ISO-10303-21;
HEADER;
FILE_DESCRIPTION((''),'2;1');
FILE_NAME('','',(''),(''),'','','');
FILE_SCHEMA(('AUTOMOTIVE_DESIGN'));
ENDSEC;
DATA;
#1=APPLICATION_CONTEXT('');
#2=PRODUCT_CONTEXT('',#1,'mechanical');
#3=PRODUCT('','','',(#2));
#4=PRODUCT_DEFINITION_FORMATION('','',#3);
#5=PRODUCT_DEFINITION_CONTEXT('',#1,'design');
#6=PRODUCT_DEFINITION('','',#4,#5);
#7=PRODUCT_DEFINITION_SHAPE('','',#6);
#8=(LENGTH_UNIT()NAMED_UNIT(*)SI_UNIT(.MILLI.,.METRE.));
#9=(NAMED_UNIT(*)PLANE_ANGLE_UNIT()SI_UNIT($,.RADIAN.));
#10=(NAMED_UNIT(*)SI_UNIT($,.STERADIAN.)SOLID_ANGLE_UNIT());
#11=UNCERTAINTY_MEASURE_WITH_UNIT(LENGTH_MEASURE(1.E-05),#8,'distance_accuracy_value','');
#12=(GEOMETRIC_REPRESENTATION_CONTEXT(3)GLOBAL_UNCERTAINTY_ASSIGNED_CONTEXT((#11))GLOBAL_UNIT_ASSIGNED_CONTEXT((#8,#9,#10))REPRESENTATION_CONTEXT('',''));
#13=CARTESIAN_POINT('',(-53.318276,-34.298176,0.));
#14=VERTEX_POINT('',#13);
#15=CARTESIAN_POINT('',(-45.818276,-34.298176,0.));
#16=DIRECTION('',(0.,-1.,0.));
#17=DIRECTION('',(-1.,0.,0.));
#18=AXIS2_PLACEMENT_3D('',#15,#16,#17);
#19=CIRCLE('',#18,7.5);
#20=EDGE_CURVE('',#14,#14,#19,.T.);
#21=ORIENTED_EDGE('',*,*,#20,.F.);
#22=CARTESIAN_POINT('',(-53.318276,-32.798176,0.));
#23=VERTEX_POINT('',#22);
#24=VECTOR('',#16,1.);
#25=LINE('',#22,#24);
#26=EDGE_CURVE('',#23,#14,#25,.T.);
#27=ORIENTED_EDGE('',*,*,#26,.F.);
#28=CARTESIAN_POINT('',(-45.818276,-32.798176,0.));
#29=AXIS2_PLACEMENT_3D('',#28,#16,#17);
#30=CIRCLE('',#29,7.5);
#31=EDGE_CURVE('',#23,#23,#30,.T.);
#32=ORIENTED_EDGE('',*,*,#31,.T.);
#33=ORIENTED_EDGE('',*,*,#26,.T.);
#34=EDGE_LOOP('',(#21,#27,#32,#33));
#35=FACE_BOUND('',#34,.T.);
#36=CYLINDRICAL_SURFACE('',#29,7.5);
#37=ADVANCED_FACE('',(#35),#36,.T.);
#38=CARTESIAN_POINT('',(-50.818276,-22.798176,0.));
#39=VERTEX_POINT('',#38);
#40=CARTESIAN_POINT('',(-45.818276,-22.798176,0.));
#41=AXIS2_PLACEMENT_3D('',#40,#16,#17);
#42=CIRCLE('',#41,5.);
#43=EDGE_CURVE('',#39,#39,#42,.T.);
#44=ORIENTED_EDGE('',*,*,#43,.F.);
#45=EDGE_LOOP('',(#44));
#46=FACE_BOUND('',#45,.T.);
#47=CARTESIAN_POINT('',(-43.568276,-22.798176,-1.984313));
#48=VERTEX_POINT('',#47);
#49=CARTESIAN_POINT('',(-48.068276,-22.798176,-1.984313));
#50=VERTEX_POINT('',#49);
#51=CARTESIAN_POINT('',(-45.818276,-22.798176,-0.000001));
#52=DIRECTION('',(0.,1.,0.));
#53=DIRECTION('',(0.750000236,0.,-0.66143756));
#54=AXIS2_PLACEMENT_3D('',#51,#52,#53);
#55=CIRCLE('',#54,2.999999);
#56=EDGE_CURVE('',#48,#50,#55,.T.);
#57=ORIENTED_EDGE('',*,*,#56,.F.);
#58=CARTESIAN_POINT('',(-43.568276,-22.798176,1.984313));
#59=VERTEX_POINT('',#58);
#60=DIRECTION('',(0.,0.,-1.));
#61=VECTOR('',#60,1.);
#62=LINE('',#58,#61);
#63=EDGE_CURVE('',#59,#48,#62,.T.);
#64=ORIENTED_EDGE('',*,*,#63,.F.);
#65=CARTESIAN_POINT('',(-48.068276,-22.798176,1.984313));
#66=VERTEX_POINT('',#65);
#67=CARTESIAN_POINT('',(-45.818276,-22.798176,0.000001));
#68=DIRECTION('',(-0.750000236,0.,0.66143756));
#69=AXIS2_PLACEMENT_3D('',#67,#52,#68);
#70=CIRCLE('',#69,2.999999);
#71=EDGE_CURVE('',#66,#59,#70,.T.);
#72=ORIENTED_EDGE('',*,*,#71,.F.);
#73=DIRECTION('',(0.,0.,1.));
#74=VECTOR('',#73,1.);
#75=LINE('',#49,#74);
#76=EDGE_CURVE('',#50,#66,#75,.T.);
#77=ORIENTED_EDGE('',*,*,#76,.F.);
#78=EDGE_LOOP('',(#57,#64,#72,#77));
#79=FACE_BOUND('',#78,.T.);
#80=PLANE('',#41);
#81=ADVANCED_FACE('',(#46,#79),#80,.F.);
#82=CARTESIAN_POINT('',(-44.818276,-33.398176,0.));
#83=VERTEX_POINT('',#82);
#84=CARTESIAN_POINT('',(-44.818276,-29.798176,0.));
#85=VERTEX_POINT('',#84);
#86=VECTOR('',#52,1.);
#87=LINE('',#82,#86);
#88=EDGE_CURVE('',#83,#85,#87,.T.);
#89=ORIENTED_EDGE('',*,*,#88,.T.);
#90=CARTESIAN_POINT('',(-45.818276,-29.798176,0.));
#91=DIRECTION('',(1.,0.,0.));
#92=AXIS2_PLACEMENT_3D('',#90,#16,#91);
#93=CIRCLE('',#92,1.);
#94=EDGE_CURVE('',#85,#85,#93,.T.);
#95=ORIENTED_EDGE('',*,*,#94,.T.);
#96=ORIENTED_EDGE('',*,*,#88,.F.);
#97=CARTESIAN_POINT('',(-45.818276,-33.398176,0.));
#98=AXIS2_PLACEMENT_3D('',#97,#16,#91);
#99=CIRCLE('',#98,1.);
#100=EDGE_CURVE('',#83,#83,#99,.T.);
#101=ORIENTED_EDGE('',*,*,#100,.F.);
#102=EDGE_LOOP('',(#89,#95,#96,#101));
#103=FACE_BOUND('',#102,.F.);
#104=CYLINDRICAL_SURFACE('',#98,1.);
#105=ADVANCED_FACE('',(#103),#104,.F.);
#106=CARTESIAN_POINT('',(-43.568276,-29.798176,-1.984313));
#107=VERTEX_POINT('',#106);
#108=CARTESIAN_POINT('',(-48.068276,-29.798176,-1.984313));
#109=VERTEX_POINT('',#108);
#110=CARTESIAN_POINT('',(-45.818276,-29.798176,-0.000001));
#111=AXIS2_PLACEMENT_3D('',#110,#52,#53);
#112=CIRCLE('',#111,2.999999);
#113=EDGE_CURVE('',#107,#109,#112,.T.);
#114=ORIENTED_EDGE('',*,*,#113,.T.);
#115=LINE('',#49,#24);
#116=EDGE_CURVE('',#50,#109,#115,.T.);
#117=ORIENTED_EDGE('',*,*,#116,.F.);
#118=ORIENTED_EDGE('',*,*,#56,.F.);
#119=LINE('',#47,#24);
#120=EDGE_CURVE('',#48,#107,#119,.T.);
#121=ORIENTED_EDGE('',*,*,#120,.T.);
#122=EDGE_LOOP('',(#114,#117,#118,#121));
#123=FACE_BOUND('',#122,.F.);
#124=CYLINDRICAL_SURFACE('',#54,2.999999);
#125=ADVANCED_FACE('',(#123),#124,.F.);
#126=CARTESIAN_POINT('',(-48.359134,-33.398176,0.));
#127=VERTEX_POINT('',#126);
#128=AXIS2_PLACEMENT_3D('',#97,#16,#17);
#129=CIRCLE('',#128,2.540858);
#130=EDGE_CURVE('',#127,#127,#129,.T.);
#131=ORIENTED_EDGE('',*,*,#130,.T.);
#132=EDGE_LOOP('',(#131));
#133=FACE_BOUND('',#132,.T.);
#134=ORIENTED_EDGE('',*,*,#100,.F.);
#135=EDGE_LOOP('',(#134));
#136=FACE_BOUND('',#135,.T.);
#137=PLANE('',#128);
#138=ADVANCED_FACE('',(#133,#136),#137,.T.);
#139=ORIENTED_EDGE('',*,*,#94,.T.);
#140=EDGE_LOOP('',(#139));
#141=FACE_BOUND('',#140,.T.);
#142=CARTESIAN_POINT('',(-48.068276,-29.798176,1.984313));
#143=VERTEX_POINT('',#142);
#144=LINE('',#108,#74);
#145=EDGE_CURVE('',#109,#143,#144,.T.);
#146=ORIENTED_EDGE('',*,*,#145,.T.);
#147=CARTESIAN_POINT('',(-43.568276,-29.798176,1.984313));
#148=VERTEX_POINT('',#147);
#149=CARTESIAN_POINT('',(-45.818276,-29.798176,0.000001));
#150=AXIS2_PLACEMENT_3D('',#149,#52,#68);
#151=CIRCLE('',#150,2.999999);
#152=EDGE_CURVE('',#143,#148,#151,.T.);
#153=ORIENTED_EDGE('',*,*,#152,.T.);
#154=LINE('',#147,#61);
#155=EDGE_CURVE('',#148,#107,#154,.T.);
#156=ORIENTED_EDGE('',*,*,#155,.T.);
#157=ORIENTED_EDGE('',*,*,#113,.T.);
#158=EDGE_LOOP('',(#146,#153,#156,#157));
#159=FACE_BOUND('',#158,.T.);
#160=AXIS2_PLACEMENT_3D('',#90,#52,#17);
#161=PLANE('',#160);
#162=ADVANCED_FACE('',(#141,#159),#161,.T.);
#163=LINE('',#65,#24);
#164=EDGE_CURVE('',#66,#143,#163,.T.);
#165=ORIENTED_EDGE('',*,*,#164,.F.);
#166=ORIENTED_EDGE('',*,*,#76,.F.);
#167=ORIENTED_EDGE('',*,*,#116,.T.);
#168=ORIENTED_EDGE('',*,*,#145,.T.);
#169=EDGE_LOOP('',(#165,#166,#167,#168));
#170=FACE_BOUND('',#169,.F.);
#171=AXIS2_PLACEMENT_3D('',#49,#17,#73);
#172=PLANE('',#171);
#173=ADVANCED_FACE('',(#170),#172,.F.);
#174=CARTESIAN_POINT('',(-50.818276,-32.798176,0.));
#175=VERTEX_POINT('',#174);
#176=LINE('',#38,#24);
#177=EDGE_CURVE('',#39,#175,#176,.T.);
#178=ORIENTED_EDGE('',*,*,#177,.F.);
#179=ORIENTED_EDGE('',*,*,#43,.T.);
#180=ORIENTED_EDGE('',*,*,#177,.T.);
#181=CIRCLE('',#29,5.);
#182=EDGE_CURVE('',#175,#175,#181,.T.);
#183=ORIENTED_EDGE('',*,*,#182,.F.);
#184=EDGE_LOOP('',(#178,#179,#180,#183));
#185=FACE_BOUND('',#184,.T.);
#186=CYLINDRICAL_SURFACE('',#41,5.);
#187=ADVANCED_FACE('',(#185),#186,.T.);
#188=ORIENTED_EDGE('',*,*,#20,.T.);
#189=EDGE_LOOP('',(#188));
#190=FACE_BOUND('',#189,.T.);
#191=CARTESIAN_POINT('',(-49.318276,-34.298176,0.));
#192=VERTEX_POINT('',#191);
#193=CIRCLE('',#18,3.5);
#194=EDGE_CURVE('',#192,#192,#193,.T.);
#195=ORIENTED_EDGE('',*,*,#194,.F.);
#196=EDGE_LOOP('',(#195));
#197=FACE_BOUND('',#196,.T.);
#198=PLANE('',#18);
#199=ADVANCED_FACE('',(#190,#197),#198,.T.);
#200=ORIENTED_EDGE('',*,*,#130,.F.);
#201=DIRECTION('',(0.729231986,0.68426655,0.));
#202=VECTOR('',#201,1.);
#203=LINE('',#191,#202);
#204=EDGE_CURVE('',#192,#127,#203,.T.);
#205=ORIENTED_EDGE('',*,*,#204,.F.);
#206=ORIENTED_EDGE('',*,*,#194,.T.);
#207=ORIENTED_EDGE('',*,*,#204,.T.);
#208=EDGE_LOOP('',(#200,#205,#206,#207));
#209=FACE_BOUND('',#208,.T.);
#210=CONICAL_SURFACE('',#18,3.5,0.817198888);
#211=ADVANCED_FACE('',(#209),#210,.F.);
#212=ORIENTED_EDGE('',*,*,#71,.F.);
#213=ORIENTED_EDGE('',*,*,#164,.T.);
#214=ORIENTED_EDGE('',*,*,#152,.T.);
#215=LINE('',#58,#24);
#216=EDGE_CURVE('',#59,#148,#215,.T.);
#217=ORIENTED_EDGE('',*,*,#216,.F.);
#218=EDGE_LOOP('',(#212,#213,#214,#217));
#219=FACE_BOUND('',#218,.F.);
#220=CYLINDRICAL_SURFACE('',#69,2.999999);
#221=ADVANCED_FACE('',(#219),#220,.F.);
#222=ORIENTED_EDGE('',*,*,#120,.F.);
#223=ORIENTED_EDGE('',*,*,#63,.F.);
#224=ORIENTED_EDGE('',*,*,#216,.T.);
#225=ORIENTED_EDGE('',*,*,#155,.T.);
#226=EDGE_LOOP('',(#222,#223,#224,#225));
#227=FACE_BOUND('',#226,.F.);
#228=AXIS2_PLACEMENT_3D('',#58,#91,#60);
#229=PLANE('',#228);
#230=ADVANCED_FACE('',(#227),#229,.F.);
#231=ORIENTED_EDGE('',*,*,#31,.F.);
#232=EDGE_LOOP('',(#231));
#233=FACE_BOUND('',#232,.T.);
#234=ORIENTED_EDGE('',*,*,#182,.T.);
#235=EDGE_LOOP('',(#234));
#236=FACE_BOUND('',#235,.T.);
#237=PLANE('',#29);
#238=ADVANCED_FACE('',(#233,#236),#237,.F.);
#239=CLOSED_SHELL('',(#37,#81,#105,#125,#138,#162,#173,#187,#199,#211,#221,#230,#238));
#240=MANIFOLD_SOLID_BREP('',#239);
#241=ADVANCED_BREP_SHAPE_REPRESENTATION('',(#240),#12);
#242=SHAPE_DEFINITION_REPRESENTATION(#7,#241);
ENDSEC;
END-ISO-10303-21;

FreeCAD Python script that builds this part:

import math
import FreeCAD as App
import Part
import Sketcher

V = App.Vector

doc = App.newDocument("Part")
params = doc.addObject("Spreadsheet::Sheet", "Params")
for row, (alias, value) in enumerate([
    ("sketch1_width", "5 mm"),
    ("sketch1_width2", "4 mm"),
    ("sketch1_height", "10 mm"),
    ("sketch1_width3", "2.5 mm"),
    ("sketch1_height2", "10.6 mm"),
    ("revolution_angle", "360 deg"),
    ("sketch2_radius", "2.999999 mm"),
    ("pocket1_length", "7 mm"),
    ("sketch3_diameter", "2 mm"),
    ("pocket2_length", "25 mm"),
], start=1):
    params.set(f"A{row}", alias)
    params.set(f"B{row}", "=" + value)
    params.setAlias(f"B{row}", alias)

body = doc.addObject("PartDesign::Body", "Body")

sketch1 = body.newObject("Sketcher::SketchObject", "Sketch")
sketch1.AttachmentSupport = (doc.getObject("XY_Plane"), [""])
sketch1.MapMode = "FlatFace"
sketch1.addGeometry([
    Part.LineSegment(V(-45.8, -33.4, 0), V(-45.8, -22.8, 0)),
    Part.LineSegment(V(-45.8, -22.8, 0), V(-50.8, -22.8, 0)),
    Part.LineSegment(V(-50.8, -22.8, 0), V(-50.8, -32.8, 0)),
    Part.LineSegment(V(-50.8, -32.8, 0), V(-53.3, -32.8, 0)),
    Part.LineSegment(V(-53.3, -32.8, 0), V(-53.3, -34.3, 0)),
    Part.LineSegment(V(-53.3, -34.3, 0), V(-49.3, -34.3, 0)),
    Part.LineSegment(V(-49.3, -34.3, 0), V(-48.4, -33.4, 0)),
    Part.LineSegment(V(-48.4, -33.4, 0), V(-45.8, -33.4, 0)),
], False)
sketch1.addGeometry(Part.LineSegment(V(-45.8, -22.8, 0), V(-45.8, -34.3, 0)), True)
sketch1.addConstraint([
    Sketcher.Constraint("Coincident", 0, 2, 1, 1),
    Sketcher.Constraint("Coincident", 1, 2, 2, 1),
    Sketcher.Constraint("Coincident", 2, 2, 3, 1),
    Sketcher.Constraint("Coincident", 3, 2, 4, 1),
    Sketcher.Constraint("Coincident", 4, 2, 5, 1),
    Sketcher.Constraint("Coincident", 5, 2, 6, 1),
    Sketcher.Constraint("Coincident", 6, 2, 7, 1),
    Sketcher.Constraint("Coincident", 7, 2, 0, 1),
    Sketcher.Constraint("Vertical", 0),
    Sketcher.Constraint("Horizontal", 1),
    Sketcher.Constraint("Vertical", 2),
    Sketcher.Constraint("Horizontal", 3),
    Sketcher.Constraint("Vertical", 4),
    Sketcher.Constraint("Horizontal", 5),
    Sketcher.Constraint("Horizontal", 7),
    Sketcher.Constraint("Vertical", 8),
    Sketcher.Constraint("Coincident", 8, 1, 0, 2),
    Sketcher.Constraint("Horizontal", 5, 2, 8, 2),
    Sketcher.Constraint("DistanceX", 1, 2, 1, 1, 5.0),
    Sketcher.Constraint("DistanceX", 5, 1, 5, 2, 4.0),
    Sketcher.Constraint("DistanceY", 2, 2, 2, 1, 10.0),
    Sketcher.Constraint("DistanceX", 3, 2, 3, 1, 2.5),
    Sketcher.Constraint("DistanceY", 0, 1, 0, 2, 10.6),
    Sketcher.Constraint("DistanceY", 4, 2, 4, 1, 1.5),
    Sketcher.Constraint("DistanceX", 7, 1, 7, 2, 2.540858),
    Sketcher.Constraint("DistanceX", 0, 2, -1, 1, 45.818276),
    Sketcher.Constraint("DistanceY", 0, 2, -1, 1, 22.798176),
])
sketch1.setExpression("Constraints[18]", "Params.sketch1_width")
sketch1.setExpression("Constraints[19]", "Params.sketch1_width2")
sketch1.setExpression("Constraints[20]", "Params.sketch1_height")
sketch1.setExpression("Constraints[21]", "Params.sketch1_width3")
sketch1.setExpression("Constraints[22]", "Params.sketch1_height2")
revolution = body.newObject("PartDesign::Revolution", "Revolution")
revolution.Profile = sketch1
revolution.ReferenceAxis = (sketch1, ["Axis0"])
revolution.setExpression("Angle", "Params.revolution_angle")

sketch2 = body.newObject("Sketcher::SketchObject", "Sketch001")
sketch2.AttachmentSupport = (doc.getObject("XZ_Plane"), [""])
sketch2.MapMode = "FlatFace"
sketch2.AttachmentOffset = App.Placement(V(0, 0, 22.798176), App.Rotation())
sketch2.addGeometry([
    Part.LineSegment(V(-43.6, 2, 0), V(-43.6, -2, 0)),
    Part.ArcOfCircle(Part.Circle(V(-45.8, 0, 0), V(0, 0, 1), 3), math.radians(-139), math.radians(-41)),
    Part.LineSegment(V(-48.1, -2, 0), V(-48.1, 2, 0)),
    Part.ArcOfCircle(Part.Circle(V(-45.8, 0, 0), V(0, 0, 1), 3), math.radians(41), math.radians(139)),
], False)
sketch2.addConstraint([
    Sketcher.Constraint("Coincident", 0, 2, 1, 2),
    Sketcher.Constraint("Coincident", 1, 1, 2, 1),
    Sketcher.Constraint("Coincident", 2, 2, 3, 2),
    Sketcher.Constraint("Coincident", 3, 1, 0, 1),
    Sketcher.Constraint("Vertical", 0),
    Sketcher.Constraint("Vertical", 2),
    Sketcher.Constraint("Coincident", 3, 3, 1, 3),
    Sketcher.Constraint("Equal", 1, 3),
    Sketcher.Constraint("PointOnObject", 1, 3, -1),
    Sketcher.Constraint("Horizontal", 0, 2, 1, 1),
    Sketcher.Constraint("Radius", 1, 2.999999),
    Sketcher.Constraint("DistanceX", 1, 1, 0, 2, 4.5),
    Sketcher.Constraint("DistanceX", 1, 3, -1, 1, 45.818276),
])
sketch2.setExpression("Constraints[10]", "Params.sketch2_radius")
pocket1 = body.newObject("PartDesign::Pocket", "Pocket")
pocket1.Profile = sketch2
pocket1.setExpression("Length", "Params.pocket1_length")
pocket1.Reversed = True

sketch3 = body.newObject("Sketcher::SketchObject", "Sketch002")
sketch3.AttachmentSupport = (doc.getObject("XZ_Plane"), [""])
sketch3.MapMode = "FlatFace"
sketch3.AttachmentOffset = App.Placement(V(0, 0, 33.398176), App.Rotation())
sketch3.addGeometry(Part.Circle(V(-45.8, 0, 0), V(0, 0, 1), 1), False)
sketch3.addConstraint([
    Sketcher.Constraint("PointOnObject", 0, 3, -1),
    Sketcher.Constraint("Diameter", 0, 2.0),
    Sketcher.Constraint("DistanceX", 0, 3, -1, 1, 45.818276),
])
sketch3.setExpression("Constraints[1]", "Params.sketch3_diameter")
pocket2 = body.newObject("PartDesign::Pocket", "Pocket001")
pocket2.Profile = sketch3
pocket2.setExpression("Length", "Params.pocket2_length")

doc.recompute()
